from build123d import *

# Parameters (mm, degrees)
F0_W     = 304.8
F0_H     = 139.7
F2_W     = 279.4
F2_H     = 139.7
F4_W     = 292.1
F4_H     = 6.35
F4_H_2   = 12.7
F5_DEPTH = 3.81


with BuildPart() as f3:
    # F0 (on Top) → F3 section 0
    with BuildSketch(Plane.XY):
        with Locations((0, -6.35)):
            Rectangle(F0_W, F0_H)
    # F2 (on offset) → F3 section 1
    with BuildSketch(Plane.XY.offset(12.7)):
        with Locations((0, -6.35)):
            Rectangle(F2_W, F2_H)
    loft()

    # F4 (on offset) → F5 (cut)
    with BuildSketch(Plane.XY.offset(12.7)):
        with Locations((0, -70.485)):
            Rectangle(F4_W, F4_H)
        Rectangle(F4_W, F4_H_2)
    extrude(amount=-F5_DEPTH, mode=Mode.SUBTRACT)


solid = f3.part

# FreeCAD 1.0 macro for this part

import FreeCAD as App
import Part
import Sketcher

V = App.Vector
Q = App.Units.Quantity


def add_polygon(sketch, points):
    """Adds a closed chain of lines whose ends are joined by coincident constraints."""
    first, n = sketch.GeometryCount, len(points)
    for a, b in zip(points, points[1:] + points[:1]):
        sketch.addGeometry(Part.LineSegment(App.Vector(*a, 0), App.Vector(*b, 0)), False)
    for i in range(n):
        sketch.addConstraint(Sketcher.Constraint("Coincident", first + i, 2, first + (i + 1) % n, 1))

doc = App.newDocument("Part")
body = doc.addObject("PartDesign::Body", "Body")

# Sketch on XY plane
sketch1 = body.newObject("Sketcher::SketchObject", "Sketch")
sketch1.AttachmentSupport = (doc.getObject("XY_Plane"), [""])
sketch1.MapMode = "FlatFace"
add_polygon(sketch1, [(-152.4, 63.5), (-152.4, -76.2), (152.4, -76.2), (152.4, 63.5)])  # lines 0-3
sketch1.addConstraint([
    Sketcher.Constraint("Vertical", 0),
    Sketcher.Constraint("Horizontal", 1),
    Sketcher.Constraint("Vertical", 2),
    Sketcher.Constraint("Horizontal", 3),
    Sketcher.Constraint("DistanceX", 1, 1, 1, 2, Q("12 in")),
    Sketcher.Constraint("DistanceY", 0, 2, 0, 1, Q("5.5 in")),
    Sketcher.Constraint("DistanceX", 0, 2, -1, 1, Q("6 in")),
    Sketcher.Constraint("DistanceY", 0, 2, -1, 1, Q("3 in")),
])

# Sketch on XY plane
sketch2 = body.newObject("Sketcher::SketchObject", "Sketch001")
sketch2.AttachmentSupport = (doc.getObject("XY_Plane"), [""])
sketch2.MapMode = "FlatFace"
sketch2.AttachmentOffset = App.Placement(V(0, 0, 0.5 * 25.4), App.Rotation())
add_polygon(sketch2, [(-139.7, 63.5), (-139.7, -76.2), (139.7, -76.2), (139.7, 63.5)])  # lines 0-3
sketch2.addConstraint([
    Sketcher.Constraint("Vertical", 0),
    Sketcher.Constraint("Horizontal", 1),
    Sketcher.Constraint("Vertical", 2),
    Sketcher.Constraint("Horizontal", 3),
    Sketcher.Constraint("DistanceX", 1, 1, 1, 2, Q("11 in")),
    Sketcher.Constraint("DistanceY", 0, 2, 0, 1, Q("5.5 in")),
    Sketcher.Constraint("DistanceY", 0, 2, -1, 1, Q("3 in")),
    Sketcher.Constraint("DistanceX", 0, 2, -1, 1, Q("5.5 in")),
])

additiveloft = body.newObject("PartDesign::AdditiveLoft", "AdditiveLoft")
additiveloft.Profile = sketch1
additiveloft.Sections = [sketch2]

# Sketch on XY plane
sketch3 = body.newObject("Sketcher::SketchObject", "Sketch002")
sketch3.AttachmentSupport = (doc.getObject("XY_Plane"), [""])
sketch3.MapMode = "FlatFace"
sketch3.AttachmentOffset = App.Placement(V(0, 0, 0.5 * 25.4), App.Rotation())
add_polygon(sketch3, [(-146.05, -67.31), (-146.05, -73.66), (146.05, -73.66), (146.05, -67.31)])  # lines 0-3
add_polygon(sketch3, [(-146.05, 6.35), (-146.05, -6.35), (146.05, -6.35), (146.05, 6.35)])  # lines 4-7
sketch3.addConstraint([
    Sketcher.Constraint("Vertical", 0),
    Sketcher.Constraint("Horizontal", 1),
    Sketcher.Constraint("Vertical", 2),
    Sketcher.Constraint("Horizontal", 3),
    Sketcher.Constraint("Vertical", 4),
    Sketcher.Constraint("Horizontal", 5),
    Sketcher.Constraint("Vertical", 6),
    Sketcher.Constraint("Horizontal", 7),
    Sketcher.Constraint("Symmetric", 4, 2, 6, 2, -1, 1),
    Sketcher.Constraint("Vertical", 3, 2, 4, 2),
    Sketcher.Constraint("Vertical", 2, 2, 5, 2),
    Sketcher.Constraint("DistanceX", 1, 1, 1, 2, Q("11.5 in")),
    Sketcher.Constraint("DistanceY", 4, 2, 4, 1, Q("0.5 in")),
    Sketcher.Constraint("DistanceY", 0, 2, 0, 1, Q("0.25 in")),
    Sketcher.Constraint("DistanceY", 0, 2, -1, 1, Q("2.9 in")),
])
pocket1 = body.newObject("PartDesign::Pocket", "Pocket")
pocket1.Profile = sketch3
pocket1.Length = Q("0.15 in")

doc.recompute()
